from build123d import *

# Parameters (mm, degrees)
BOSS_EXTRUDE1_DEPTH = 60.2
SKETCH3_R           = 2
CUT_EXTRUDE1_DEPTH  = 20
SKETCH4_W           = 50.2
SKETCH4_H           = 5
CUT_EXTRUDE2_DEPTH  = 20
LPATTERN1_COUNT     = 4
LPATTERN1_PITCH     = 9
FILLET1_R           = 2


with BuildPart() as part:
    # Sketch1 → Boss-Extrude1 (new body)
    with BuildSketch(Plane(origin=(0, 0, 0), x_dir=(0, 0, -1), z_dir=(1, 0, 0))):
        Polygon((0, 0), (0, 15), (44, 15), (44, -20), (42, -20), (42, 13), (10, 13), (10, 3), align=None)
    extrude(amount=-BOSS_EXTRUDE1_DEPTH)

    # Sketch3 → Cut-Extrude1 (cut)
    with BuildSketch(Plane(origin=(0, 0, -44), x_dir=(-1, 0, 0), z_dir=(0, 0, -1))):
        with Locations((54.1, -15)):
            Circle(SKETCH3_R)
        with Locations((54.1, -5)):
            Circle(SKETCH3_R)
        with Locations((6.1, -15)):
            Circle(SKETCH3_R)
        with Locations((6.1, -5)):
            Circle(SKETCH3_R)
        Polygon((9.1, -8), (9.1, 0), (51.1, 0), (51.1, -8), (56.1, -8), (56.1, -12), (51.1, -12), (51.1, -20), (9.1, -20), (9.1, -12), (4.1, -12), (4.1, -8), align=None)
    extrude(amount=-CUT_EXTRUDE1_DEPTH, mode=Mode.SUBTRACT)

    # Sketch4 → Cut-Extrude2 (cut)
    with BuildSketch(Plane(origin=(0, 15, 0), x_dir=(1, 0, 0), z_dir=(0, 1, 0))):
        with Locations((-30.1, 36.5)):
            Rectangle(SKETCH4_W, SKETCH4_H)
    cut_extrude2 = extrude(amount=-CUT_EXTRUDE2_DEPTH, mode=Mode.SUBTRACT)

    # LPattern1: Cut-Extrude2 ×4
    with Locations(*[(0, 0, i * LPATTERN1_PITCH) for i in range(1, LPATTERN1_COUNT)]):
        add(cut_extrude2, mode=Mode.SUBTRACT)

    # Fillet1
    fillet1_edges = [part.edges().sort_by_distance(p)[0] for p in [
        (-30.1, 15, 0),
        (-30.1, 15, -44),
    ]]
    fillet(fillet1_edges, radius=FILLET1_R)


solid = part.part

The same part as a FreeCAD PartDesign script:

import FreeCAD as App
import Part
import Sketcher


def edges_at(feature, points):
    """Names of the edges that pass closest to the given points."""
    edges = feature.Shape.Edges
    near = lambda p: min(range(len(edges)), key=lambda i: edges[i].distToShape(Part.Vertex(*p))[0])
    return sorted({f"Edge{near(p) + 1}" for p in points})

doc = App.newDocument("Part")
body = doc.addObject("PartDesign::Body", "Body")

sketch1 = body.newObject("Sketcher::SketchObject", "Sketch")
sketch1.AttachmentSupport = (doc.getObject("YZ_Plane"), [""])
sketch1.MapMode = "FlatFace"
sketch1.addGeometry([
    Part.LineSegment(App.Vector(15, 0, 0), App.Vector(0, 0, 0)),
    Part.LineSegment(App.Vector(0, 0, 0), App.Vector(3, -10, 0)),
    Part.LineSegment(App.Vector(3, -10, 0), App.Vector(13, -10, 0)),
    Part.LineSegment(App.Vector(13, -10, 0), App.Vector(13, -42, 0)),
    Part.LineSegment(App.Vector(13, -42, 0), App.Vector(-20, -42, 0)),
    Part.LineSegment(App.Vector(-20, -42, 0), App.Vector(-20, -44, 0)),
    Part.LineSegment(App.Vector(-20, -44, 0), App.Vector(15, -44, 0)),
    Part.LineSegment(App.Vector(15, -44, 0), App.Vector(15, 0, 0)),
], False)
sketch1.addConstraint([
    Sketcher.Constraint("Coincident", 0, 2, 1, 1),
    Sketcher.Constraint("Coincident", 1, 2, 2, 1),
    Sketcher.Constraint("Coincident", 2, 2, 3, 1),
    Sketcher.Constraint("Coincident", 3, 2, 4, 1),
    Sketcher.Constraint("Coincident", 4, 2, 5, 1),
    Sketcher.Constraint("Coincident", 5, 2, 6, 1),
    Sketcher.Constraint("Coincident", 6, 2, 7, 1),
    Sketcher.Constraint("Coincident", 7, 2, 0, 1),
    Sketcher.Constraint("Horizontal", 0),
    Sketcher.Constraint("Horizontal", 2),
    Sketcher.Constraint("Vertical", 3),
    Sketcher.Constraint("Horizontal", 4),
    Sketcher.Constraint("Vertical", 5),
    Sketcher.Constraint("Horizontal", 6),
    Sketcher.Constraint("Vertical", 7),
    Sketcher.Constraint("Coincident", 0, 2, -1, 1),
    Sketcher.Constraint("DistanceX", 0, 2, 0, 1, 15.0),
    Sketcher.Constraint("DistanceX", 2, 1, 2, 2, 10.0),
    Sketcher.Constraint("DistanceX", 4, 2, 4, 1, 33.0),
    Sketcher.Constraint("DistanceX", 6, 1, 6, 2, 35.0),
    Sketcher.Constraint("DistanceY", 3, 2, 3, 1, 32.0),
    Sketcher.Constraint("DistanceY", 5, 2, 5, 1, 2.0),
    Sketcher.Constraint("DistanceY", 7, 1, 7, 2, 44.0),
])
pad1 = body.newObject("PartDesign::Pad", "Pad")
pad1.Profile = sketch1
pad1.Length = 60.2
pad1.Reversed = True

sketch2 = body.newObject("Sketcher::SketchObject", "Sketch001")
sketch2.AttachmentSupport = (doc.getObject("XY_Plane"), [""])
sketch2.MapMode = "FlatFace"
sketch2.AttachmentOffset = App.Placement(App.Vector(0, 0, -44), App.Rotation())
sketch2.addGeometry([
    Part.Circle(App.Vector(-54.1, -15, 0), App.Vector(0, 0, 1), 2),
    Part.Circle(App.Vector(-54.1, -5, 0), App.Vector(0, 0, 1), 2),
    Part.Circle(App.Vector(-6.1, -15, 0), App.Vector(0, 0, 1), 2),
    Part.Circle(App.Vector(-6.1, -5, 0), App.Vector(0, 0, 1), 2),
    Part.LineSegment(App.Vector(-9.1, 0, 0), App.Vector(-9.1, -8, 0)),
    Part.LineSegment(App.Vector(-9.1, -8, 0), App.Vector(-4.1, -8, 0)),
    Part.LineSegment(App.Vector(-4.1, -8, 0), App.Vector(-4.1, -12, 0)),
    Part.LineSegment(App.Vector(-4.1, -12, 0), App.Vector(-9.1, -12, 0)),
    Part.LineSegment(App.Vector(-9.1, -12, 0), App.Vector(-9.1, -20, 0)),
    Part.LineSegment(App.Vector(-9.1, -20, 0), App.Vector(-51.1, -20, 0)),
    Part.LineSegment(App.Vector(-51.1, -20, 0), App.Vector(-51.1, -12, 0)),
    Part.LineSegment(App.Vector(-51.1, -12, 0), App.Vector(-56.1, -12, 0)),
    Part.LineSegment(App.Vector(-56.1, -12, 0), App.Vector(-56.1, -8, 0)),
    Part.LineSegment(App.Vector(-56.1, -8, 0), App.Vector(-51.1, -8, 0)),
    Part.LineSegment(App.Vector(-51.1, -8, 0), App.Vector(-51.1, 0, 0)),
    Part.LineSegment(App.Vector(-51.1, 0, 0), App.Vector(-9.1, 0, 0)),
], False)
sketch2.addConstraint([
    Sketcher.Constraint("Coincident", 4, 2, 5, 1),
    Sketcher.Constraint("Coincident", 5, 2, 6, 1),
    Sketcher.Constraint("Coincident", 6, 2, 7, 1),
    Sketcher.Constraint("Coincident", 7, 2, 8, 1),
    Sketcher.Constraint("Coincident", 8, 2, 9, 1),
    Sketcher.Constraint("Coincident", 9, 2, 10, 1),
    Sketcher.Constraint("Coincident", 10, 2, 11, 1),
    Sketcher.Constraint("Coincident", 11, 2, 12, 1),
    Sketcher.Constraint("Coincident", 12, 2, 13, 1),
    Sketcher.Constraint("Coincident", 13, 2, 14, 1),
    Sketcher.Constraint("Coincident", 14, 2, 15, 1),
    Sketcher.Constraint("Coincident", 15, 2, 4, 1),
    Sketcher.Constraint("Vertical", 4),
    Sketcher.Constraint("Horizontal", 5),
    Sketcher.Constraint("Vertical", 6),
    Sketcher.Constraint("Horizontal", 7),
    Sketcher.Constraint("Vertical", 8),
    Sketcher.Constraint("Horizontal", 9),
    Sketcher.Constraint("Vertical", 10),
    Sketcher.Constraint("Horizontal", 11),
    Sketcher.Constraint("Vertical", 12),
    Sketcher.Constraint("Horizontal", 13),
    Sketcher.Constraint("Vertical", 14),
    Sketcher.Constraint("Horizontal", 15),
    Sketcher.Constraint("Equal", 0, 1),
    Sketcher.Constraint("Equal", 1, 2),
    Sketcher.Constraint("Equal", 2, 3),
    Sketcher.Constraint("PointOnObject", 14, 2, -1),
    Sketcher.Constraint("Horizontal", 0, 3, 2, 3),
    Sketcher.Constraint("Horizontal", 1, 3, 3, 3),
    Sketcher.Constraint("Horizontal", 7, 2, 10, 2),
    Sketcher.Constraint("Horizontal", 5, 2, 12, 2),
    Sketcher.Constraint("Vertical", 0, 3, 1, 3),
    Sketcher.Constraint("Vertical", 2, 3, 3, 3),
    Sketcher.Constraint("Vertical", 4, 2, 7, 2),
    Sketcher.Constraint("Vertical", 10, 2, 13, 2),
    Sketcher.Constraint("Equal", 7, 11),
    Sketcher.Constraint("Equal", 4, 8),
    Sketcher.Constraint("Diameter", 0, 4.0),
    Sketcher.Constraint("DistanceX", 5, 1, 5, 2, 5.0),
    Sketcher.Constraint("DistanceX", 9, 2, 9, 1, 42.0),
    Sketcher.Constraint("DistanceY", 4, 2, 4, 1, 8.0),
    Sketcher.Constraint("DistanceY", 6, 2, 6, 1, 4.0),
    Sketcher.Constraint("DistanceY", 0, 3, -1, 1, 15.0),
    Sketcher.Constraint("DistanceY", 1, 3, -1, 1, 5.0),
    Sketcher.Constraint("DistanceX", 0, 3, 2, 3, 48.0),
    Sketcher.Constraint("DistanceX", 4, 2, 3, 3, 3.0),
    Sketcher.Constraint("DistanceX", 0, 3, -1, 1, 54.1),
])
pocket1 = body.newObject("PartDesign::Pocket", "Pocket")
pocket1.Profile = sketch2
pocket1.Length = 20
pocket1.Reversed = True

sketch3 = body.newObject("Sketcher::SketchObject", "Sketch002")
sketch3.AttachmentSupport = (doc.getObject("XZ_Plane"), [""])
sketch3.MapMode = "FlatFace"
sketch3.AttachmentOffset = App.Placement(App.Vector(0, 0, -15), App.Rotation())
sketch3.addGeometry([
    Part.LineSegment(App.Vector(-55.2, -39, 0), App.Vector(-55.2, -34, 0)),
    Part.LineSegment(App.Vector(-55.2, -34, 0), App.Vector(-5, -34, 0)),
    Part.LineSegment(App.Vector(-5, -34, 0), App.Vector(-5, -39, 0)),
    Part.LineSegment(App.Vector(-5, -39, 0), App.Vector(-55.2, -39, 0)),
], False)
sketch3.addConstraint([
    Sketcher.Constraint("Coincident", 0, 2, 1, 1),
    Sketcher.Constraint("Coincident", 1, 2, 2, 1),
    Sketcher.Constraint("Coincident", 2, 2, 3, 1),
    Sketcher.Constraint("Coincident", 3, 2, 0, 1),
    Sketcher.Constraint("Vertical", 0),
    Sketcher.Constraint("Horizontal", 1),
    Sketcher.Constraint("Vertical", 2),
    Sketcher.Constraint("Horizontal", 3),
    Sketcher.Constraint("DistanceY", 0, 1, 0, 2, 5.0),
    Sketcher.Constraint("DistanceX", 1, 1, 1, 2, 50.2),
    Sketcher.Constraint("DistanceY", 0, 2, -1, 1, 34.0),
    Sketcher.Constraint("DistanceX", 1, 2, -1, 1, 5.0),
])
pocket2 = body.newObject("PartDesign::Pocket", "Pocket001")
pocket2.Profile = sketch3
pocket2.Length = 20
pocket2.Reversed = True
doc.recompute()

linearpattern = body.newObject("PartDesign::LinearPattern", "LinearPattern")
linearpattern.Originals = [pocket2]
linearpattern.Direction = (doc.getObject("Z_Axis"), [""])
linearpattern.Mode = "offset"
linearpattern.Offset = 9
linearpattern.Occurrences = 4
body.Tip = linearpattern
doc.recompute()

fillet = body.newObject("PartDesign::Fillet", "Fillet")
fillet.Base = (linearpattern, edges_at(linearpattern, [(-30.1, 15, 0), (-30.1, 15, -44)]))
fillet.Radius = 2

doc.recompute()
